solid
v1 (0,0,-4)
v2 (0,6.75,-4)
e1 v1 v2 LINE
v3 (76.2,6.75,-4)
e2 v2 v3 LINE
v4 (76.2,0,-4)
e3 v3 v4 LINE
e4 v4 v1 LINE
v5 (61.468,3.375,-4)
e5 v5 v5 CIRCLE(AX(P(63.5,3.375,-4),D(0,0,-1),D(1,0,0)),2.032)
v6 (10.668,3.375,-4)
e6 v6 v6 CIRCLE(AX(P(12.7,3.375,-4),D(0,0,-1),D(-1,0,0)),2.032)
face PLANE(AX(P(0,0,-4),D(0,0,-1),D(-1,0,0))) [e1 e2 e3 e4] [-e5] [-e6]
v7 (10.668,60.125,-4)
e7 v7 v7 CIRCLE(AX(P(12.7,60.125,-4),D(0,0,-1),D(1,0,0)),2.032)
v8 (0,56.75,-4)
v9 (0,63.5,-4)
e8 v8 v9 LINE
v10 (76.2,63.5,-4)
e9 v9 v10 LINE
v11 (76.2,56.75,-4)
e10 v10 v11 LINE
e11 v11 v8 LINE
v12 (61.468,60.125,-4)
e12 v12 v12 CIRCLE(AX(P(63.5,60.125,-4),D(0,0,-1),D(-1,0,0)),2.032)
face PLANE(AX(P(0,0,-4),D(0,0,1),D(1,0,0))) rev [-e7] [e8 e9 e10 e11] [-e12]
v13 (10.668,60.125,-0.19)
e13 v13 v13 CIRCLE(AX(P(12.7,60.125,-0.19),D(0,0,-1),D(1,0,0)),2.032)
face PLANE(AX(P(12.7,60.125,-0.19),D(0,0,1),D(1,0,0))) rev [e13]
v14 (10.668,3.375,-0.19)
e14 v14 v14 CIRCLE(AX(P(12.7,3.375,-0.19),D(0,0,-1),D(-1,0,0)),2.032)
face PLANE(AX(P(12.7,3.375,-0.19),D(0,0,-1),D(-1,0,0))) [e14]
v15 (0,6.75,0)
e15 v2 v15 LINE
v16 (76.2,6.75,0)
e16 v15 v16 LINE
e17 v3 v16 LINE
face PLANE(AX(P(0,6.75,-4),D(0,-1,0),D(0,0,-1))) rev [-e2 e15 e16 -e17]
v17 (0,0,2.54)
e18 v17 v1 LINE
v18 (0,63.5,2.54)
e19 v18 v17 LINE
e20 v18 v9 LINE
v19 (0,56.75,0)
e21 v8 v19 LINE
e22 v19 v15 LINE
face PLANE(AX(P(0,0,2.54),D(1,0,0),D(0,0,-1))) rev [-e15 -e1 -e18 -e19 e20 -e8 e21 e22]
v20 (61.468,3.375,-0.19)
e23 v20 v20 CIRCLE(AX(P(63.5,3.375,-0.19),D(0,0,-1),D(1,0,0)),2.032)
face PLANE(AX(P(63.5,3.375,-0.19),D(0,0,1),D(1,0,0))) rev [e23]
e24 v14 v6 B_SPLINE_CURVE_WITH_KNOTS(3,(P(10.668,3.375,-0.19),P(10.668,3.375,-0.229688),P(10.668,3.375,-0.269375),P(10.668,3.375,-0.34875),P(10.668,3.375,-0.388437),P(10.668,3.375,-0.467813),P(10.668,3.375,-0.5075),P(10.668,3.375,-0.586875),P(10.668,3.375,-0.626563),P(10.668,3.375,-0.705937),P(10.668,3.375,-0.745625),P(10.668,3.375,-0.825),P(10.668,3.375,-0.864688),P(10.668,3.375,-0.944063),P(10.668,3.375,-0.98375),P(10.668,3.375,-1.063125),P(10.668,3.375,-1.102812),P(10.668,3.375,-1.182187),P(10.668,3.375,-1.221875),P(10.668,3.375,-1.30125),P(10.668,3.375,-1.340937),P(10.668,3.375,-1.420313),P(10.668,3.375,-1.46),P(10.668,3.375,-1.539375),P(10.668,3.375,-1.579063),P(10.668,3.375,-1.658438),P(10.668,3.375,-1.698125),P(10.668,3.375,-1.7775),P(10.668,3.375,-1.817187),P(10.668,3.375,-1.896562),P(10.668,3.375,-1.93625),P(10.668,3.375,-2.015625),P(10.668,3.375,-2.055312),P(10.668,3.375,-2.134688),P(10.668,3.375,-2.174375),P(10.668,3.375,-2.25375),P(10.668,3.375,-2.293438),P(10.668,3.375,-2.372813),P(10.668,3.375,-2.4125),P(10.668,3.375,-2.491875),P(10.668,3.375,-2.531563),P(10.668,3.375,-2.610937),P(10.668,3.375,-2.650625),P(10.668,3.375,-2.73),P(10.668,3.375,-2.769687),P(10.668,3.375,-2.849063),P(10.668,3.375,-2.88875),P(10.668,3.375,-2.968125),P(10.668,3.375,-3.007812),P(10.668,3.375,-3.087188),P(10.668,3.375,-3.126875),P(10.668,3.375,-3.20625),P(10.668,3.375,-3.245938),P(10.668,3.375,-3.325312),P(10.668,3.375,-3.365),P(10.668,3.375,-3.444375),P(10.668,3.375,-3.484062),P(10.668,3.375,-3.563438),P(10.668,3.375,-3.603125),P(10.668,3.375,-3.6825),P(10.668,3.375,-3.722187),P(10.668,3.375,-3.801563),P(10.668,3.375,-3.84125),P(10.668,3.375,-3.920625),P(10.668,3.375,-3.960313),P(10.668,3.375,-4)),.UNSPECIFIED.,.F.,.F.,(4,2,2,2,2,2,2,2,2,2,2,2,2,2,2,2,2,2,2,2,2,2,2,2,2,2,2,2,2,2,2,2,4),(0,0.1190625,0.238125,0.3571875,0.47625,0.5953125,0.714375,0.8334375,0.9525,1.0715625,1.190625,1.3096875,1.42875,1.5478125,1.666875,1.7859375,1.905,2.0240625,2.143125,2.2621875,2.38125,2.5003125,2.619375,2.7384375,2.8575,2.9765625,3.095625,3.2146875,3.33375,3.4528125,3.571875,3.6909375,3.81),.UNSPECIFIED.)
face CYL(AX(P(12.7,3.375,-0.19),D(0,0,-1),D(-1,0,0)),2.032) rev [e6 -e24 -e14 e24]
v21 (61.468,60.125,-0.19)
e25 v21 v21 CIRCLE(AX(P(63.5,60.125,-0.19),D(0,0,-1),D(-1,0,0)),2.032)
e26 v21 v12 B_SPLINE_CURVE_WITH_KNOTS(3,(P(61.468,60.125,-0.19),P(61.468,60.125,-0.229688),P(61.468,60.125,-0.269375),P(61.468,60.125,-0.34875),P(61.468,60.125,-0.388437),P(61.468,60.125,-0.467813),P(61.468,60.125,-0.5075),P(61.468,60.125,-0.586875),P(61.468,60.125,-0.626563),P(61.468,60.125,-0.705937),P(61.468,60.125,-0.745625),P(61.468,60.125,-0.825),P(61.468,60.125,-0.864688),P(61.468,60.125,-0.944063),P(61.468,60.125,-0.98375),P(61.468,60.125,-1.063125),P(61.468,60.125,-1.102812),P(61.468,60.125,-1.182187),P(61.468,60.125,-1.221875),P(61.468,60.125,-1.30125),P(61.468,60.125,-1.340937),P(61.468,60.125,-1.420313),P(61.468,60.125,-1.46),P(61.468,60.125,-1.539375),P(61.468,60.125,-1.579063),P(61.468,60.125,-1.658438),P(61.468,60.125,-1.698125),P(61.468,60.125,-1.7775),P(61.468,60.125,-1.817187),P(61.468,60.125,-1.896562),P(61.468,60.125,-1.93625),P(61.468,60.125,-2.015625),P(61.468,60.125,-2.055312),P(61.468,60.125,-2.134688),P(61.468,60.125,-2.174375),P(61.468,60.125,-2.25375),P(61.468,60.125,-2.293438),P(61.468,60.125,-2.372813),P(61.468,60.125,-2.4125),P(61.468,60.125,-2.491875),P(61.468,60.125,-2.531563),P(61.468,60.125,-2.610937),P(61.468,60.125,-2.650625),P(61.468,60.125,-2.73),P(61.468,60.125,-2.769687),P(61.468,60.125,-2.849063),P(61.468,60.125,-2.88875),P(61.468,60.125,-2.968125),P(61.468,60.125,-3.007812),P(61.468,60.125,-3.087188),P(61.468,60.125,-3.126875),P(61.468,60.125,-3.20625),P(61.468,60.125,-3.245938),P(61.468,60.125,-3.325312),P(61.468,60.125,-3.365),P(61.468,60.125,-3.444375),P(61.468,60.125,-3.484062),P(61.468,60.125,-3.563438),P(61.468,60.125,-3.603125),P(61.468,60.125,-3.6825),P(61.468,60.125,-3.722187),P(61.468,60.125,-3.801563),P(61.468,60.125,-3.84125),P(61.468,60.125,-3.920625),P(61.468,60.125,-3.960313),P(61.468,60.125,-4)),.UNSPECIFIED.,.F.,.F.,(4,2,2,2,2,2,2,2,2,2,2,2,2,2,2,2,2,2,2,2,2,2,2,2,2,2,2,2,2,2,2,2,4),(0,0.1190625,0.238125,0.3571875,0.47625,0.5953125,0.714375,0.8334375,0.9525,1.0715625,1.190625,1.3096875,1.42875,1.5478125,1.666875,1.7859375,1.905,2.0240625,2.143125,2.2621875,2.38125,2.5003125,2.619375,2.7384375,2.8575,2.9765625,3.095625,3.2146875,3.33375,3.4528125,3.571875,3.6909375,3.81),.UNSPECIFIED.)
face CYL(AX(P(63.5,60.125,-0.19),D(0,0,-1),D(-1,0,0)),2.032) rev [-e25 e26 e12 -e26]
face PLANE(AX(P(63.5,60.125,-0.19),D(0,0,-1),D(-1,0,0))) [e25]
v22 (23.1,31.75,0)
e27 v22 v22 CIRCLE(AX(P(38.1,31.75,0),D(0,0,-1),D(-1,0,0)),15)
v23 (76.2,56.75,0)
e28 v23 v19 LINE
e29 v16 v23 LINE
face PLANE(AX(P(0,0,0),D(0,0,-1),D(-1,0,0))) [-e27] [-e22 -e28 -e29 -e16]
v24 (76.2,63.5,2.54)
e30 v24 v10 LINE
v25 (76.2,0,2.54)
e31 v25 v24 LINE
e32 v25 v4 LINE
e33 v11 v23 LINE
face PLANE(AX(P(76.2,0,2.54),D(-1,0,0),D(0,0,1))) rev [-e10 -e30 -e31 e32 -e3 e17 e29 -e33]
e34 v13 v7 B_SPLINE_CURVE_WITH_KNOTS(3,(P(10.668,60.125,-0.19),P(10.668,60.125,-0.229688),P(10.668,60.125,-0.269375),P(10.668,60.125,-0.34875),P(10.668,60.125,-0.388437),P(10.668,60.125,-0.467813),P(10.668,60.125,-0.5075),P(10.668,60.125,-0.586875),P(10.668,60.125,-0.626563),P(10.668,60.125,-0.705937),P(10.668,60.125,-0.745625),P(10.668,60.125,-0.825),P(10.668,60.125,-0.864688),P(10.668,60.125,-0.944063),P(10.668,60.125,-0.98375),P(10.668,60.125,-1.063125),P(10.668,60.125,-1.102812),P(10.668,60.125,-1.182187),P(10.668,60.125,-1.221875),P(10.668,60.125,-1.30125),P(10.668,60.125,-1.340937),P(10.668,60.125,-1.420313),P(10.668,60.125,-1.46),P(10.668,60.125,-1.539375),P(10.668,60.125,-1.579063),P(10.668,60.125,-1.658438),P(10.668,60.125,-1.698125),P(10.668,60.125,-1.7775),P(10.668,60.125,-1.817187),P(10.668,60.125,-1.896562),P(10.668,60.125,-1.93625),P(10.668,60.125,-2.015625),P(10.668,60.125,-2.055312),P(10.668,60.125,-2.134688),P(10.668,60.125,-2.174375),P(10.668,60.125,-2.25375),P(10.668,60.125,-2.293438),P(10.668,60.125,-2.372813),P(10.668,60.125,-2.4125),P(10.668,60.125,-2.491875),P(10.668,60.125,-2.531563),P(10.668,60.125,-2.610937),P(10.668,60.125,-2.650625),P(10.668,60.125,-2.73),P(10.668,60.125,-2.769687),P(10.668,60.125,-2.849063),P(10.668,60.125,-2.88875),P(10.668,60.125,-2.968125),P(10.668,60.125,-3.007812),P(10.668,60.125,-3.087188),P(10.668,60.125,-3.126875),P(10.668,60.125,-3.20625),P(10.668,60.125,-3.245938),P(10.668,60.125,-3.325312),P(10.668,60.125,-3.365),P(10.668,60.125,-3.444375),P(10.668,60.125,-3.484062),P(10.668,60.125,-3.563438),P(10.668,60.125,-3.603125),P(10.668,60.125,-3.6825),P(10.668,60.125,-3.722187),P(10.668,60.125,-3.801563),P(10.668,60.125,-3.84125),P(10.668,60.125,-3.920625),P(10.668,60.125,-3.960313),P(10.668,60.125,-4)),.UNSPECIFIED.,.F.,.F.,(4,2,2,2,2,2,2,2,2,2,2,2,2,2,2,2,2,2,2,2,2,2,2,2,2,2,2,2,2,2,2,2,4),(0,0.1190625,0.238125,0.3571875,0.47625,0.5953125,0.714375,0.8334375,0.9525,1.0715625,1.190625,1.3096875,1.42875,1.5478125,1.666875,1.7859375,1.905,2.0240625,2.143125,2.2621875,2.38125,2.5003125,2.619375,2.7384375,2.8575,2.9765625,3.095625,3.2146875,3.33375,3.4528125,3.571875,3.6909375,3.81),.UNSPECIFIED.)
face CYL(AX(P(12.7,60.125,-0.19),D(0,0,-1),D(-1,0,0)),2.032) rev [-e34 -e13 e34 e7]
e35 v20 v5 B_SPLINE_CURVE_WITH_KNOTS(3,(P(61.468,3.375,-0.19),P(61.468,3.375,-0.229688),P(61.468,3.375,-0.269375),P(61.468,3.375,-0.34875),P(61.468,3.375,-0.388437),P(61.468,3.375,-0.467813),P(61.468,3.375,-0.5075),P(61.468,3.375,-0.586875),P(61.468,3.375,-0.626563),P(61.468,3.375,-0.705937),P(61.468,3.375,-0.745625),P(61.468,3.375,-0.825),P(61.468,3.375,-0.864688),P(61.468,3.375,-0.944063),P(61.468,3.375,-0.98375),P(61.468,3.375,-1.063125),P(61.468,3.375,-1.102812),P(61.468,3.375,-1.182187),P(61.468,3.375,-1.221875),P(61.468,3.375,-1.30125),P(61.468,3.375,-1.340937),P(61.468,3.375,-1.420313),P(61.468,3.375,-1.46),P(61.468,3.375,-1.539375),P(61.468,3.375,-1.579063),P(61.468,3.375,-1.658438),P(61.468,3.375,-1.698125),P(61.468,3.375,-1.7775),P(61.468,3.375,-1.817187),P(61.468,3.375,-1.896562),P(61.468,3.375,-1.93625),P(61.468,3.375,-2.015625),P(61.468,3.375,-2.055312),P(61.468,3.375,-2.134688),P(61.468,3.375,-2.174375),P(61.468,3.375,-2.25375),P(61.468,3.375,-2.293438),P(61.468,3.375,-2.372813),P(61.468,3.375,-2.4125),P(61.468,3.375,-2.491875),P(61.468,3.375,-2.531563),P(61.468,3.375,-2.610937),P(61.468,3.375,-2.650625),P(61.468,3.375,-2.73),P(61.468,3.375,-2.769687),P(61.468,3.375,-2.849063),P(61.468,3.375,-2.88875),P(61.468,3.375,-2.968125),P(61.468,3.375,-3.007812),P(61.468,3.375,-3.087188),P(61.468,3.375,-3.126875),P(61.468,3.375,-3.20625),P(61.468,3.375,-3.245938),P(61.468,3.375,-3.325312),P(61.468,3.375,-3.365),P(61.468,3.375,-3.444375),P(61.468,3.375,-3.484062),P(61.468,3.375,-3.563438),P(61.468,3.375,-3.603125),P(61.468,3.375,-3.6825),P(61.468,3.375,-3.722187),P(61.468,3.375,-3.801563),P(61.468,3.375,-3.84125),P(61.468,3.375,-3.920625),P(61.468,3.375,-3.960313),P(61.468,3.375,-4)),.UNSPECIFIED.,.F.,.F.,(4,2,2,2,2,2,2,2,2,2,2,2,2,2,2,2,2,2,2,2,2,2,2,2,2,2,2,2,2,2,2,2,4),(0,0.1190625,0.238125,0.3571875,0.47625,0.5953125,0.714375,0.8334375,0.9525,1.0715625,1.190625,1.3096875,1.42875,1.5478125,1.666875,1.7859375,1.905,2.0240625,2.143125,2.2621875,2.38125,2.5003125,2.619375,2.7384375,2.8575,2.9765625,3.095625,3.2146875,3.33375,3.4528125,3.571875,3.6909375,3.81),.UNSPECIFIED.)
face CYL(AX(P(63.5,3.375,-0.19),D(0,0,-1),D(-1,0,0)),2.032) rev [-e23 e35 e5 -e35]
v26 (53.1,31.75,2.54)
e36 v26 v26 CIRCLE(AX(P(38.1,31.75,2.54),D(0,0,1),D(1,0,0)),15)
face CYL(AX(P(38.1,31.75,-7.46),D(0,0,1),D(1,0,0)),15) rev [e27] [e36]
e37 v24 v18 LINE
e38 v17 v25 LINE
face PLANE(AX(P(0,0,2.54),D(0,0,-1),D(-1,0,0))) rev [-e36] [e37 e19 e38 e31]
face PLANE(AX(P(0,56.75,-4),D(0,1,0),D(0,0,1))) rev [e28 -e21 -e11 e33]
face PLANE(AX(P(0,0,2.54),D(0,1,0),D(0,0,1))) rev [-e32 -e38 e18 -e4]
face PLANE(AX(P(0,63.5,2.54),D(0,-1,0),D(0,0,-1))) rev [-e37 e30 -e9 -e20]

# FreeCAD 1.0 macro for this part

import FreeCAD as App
import Part
import Sketcher
from FreeCAD import Vector
Q = App.Units.Quantity

doc = App.newDocument("Part")
body = doc.addObject("PartDesign::Body", "Body")

sketch1 = body.newObject("Sketcher::SketchObject", "Sketch")
sketch1.AttachmentSupport = (doc.getObject("XY_Plane"), [""])
sketch1.MapMode = "FlatFace"
sketch1.addGeometry([
    Part.LineSegment(Vector(0, 64, 0), Vector(0, 0, 0)),
    Part.LineSegment(Vector(0, 0, 0), Vector(76, 0, 0)),
    Part.LineSegment(Vector(76, 0, 0), Vector(76, 64, 0)),
    Part.LineSegment(Vector(76, 64, 0), Vector(0, 64, 0)),
], False)
sketch1.addConstraint([
    Sketcher.Constraint("Coincident", 0, 2, 1, 1),
    Sketcher.Constraint("Coincident", 1, 2, 2, 1),
    Sketcher.Constraint("Coincident", 2, 2, 3, 1),
    Sketcher.Constraint("Coincident", 3, 2, 0, 1),
    Sketcher.Constraint("Vertical", 0),
    Sketcher.Constraint("Horizontal", 1),
    Sketcher.Constraint("Vertical", 2),
    Sketcher.Constraint("Horizontal", 3),
    Sketcher.Constraint("Coincident", 0, 2, -1, 1),
    Sketcher.Constraint("DistanceX", 1, 1, 1, 2, Q("3 in")),
    Sketcher.Constraint("DistanceY", 0, 2, 0, 1, Q("2.5 in")),
])
pad1 = body.newObject("PartDesign::Pad", "Pad")
pad1.Profile = sketch1
pad1.Length = Q("0.1 in")

sketch2 = body.newObject("Sketcher::SketchObject", "Sketch001")
sketch2.AttachmentSupport = (doc.getObject("XY_Plane"), [""])
sketch2.MapMode = "FlatFace"
sketch2.addGeometry([
    Part.LineSegment(Vector(76, 64, 0), Vector(76, 57, 0)),
    Part.LineSegment(Vector(76, 57, 0), Vector(0, 57, 0)),
    Part.LineSegment(Vector(0, 57, 0), Vector(0, 64, 0)),
    Part.LineSegment(Vector(0, 64, 0), Vector(76, 64, 0)),
    Part.LineSegment(Vector(76, 7, 0), Vector(76, 0, 0)),
    Part.LineSegment(Vector(76, 0, 0), Vector(0, 0, 0)),
    Part.LineSegment(Vector(0, 0, 0), Vector(0, 7, 0)),
    Part.LineSegment(Vector(0, 7, 0), Vector(76, 7, 0)),
], False)
sketch2.addConstraint([
    Sketcher.Constraint("Coincident", 0, 2, 1, 1),
    Sketcher.Constraint("Coincident", 1, 2, 2, 1),
    Sketcher.Constraint("Coincident", 2, 2, 3, 1),
    Sketcher.Constraint("Coincident", 3, 2, 0, 1),
    Sketcher.Constraint("Coincident", 4, 2, 5, 1),
    Sketcher.Constraint("Coincident", 5, 2, 6, 1),
    Sketcher.Constraint("Coincident", 6, 2, 7, 1),
    Sketcher.Constraint("Coincident", 7, 2, 4, 1),
    Sketcher.Constraint("Vertical", 0),
    Sketcher.Constraint("Horizontal", 1),
    Sketcher.Constraint("Vertical", 2),
    Sketcher.Constraint("Horizontal", 3),
    Sketcher.Constraint("Vertical", 4),
    Sketcher.Constraint("Horizontal", 5),
    Sketcher.Constraint("Vertical", 6),
    Sketcher.Constraint("Horizontal", 7),
    Sketcher.Constraint("Coincident", 5, 2, -1, 1),
    Sketcher.Constraint("PointOnObject", 1, 2, -2),
    Sketcher.Constraint("Vertical", 3, 2, 4, 2),
    Sketcher.Constraint("Equal", 2, 4),
    Sketcher.Constraint("DistanceX", 1, 2, 1, 1, Q("3 in")),
    Sketcher.Constraint("DistanceY", -1, 1, 2, 2, Q("2.5 in")),
    Sketcher.Constraint("DistanceY", 0, 2, 0, 1, Q("6.75 mm")),
])
pad2 = body.newObject("PartDesign::Pad", "Pad001")
pad2.Profile = sketch2
pad2.Length = 4
pad2.Reversed = True

sketch3 = body.newObject("Sketcher::SketchObject", "Sketch002")
sketch3.AttachmentSupport = (doc.getObject("XY_Plane"), [""])
sketch3.MapMode = "FlatFace"
sketch3.AttachmentOffset = App.Placement(Vector(0, 0, -4), App.Rotation())
sketch3.addGeometry([
    Part.Circle(Vector(63.5, 60.1, 0), Vector(0, 0, 1), 2),
    Part.Circle(Vector(63.5, 3.4, 0), Vector(0, 0, 1), 2),
    Part.Circle(Vector(12.7, 3.4, 0), Vector(0, 0, 1), 2),
    Part.Circle(Vector(12.7, 60.1, 0), Vector(0, 0, 1), 2),
], False)
sketch3.addConstraint([
    Sketcher.Constraint("Equal", 0, 1),
    Sketcher.Constraint("Equal", 1, 2),
    Sketcher.Constraint("Equal", 2, 3),
    Sketcher.Constraint("Horizontal", 1, 3, 2, 3),
    Sketcher.Constraint("Horizontal", 0, 3, 3, 3),
    Sketcher.Constraint("Vertical", 0, 3, 1, 3),
    Sketcher.Constraint("Vertical", 2, 3, 3, 3),
    Sketcher.Constraint("Diameter", 0, Q("0.16 in")),
    Sketcher.Constraint("DistanceX", 2, 3, 1, 3, Q("2 in")),
    Sketcher.Constraint("DistanceX", -1, 1, 0, 3, Q("2.5 in")),
    Sketcher.Constraint("DistanceY", -1, 1, 0, 3, Q("60.125 mm")),
    Sketcher.Constraint("DistanceY", -1, 1, 1, 3, Q("3.375 mm")),
])
pocket1 = body.newObject("PartDesign::Pocket", "Pocket")
pocket1.Profile = sketch3
pocket1.Length = Q("0.15 in")
pocket1.Reversed = True

sketch4 = body.newObject("Sketcher::SketchObject", "Sketch003")
sketch4.AttachmentSupport = (doc.getObject("XY_Plane"), [""])
sketch4.MapMode = "FlatFace"
sketch4.AttachmentOffset = App.Placement(Vector(0, 0, 0.1 * 25.4), App.Rotation())
sketch4.addGeometry(Part.Circle(Vector(38, 32, 0), Vector(0, 0, 1), 15), False)
sketch4.addConstraint([
    Sketcher.Constraint("DistanceX", -1, 1, 0, 3, Q("1.5 in")),
    Sketcher.Constraint("Diameter", 0, Q("30 mm")),
    Sketcher.Constraint("DistanceY", -1, 1, 0, 3, Q("1.25 in")),
])
pocket2 = body.newObject("PartDesign::Pocket", "Pocket001")
pocket2.Profile = sketch4
pocket2.Length = 10

doc.recompute()
